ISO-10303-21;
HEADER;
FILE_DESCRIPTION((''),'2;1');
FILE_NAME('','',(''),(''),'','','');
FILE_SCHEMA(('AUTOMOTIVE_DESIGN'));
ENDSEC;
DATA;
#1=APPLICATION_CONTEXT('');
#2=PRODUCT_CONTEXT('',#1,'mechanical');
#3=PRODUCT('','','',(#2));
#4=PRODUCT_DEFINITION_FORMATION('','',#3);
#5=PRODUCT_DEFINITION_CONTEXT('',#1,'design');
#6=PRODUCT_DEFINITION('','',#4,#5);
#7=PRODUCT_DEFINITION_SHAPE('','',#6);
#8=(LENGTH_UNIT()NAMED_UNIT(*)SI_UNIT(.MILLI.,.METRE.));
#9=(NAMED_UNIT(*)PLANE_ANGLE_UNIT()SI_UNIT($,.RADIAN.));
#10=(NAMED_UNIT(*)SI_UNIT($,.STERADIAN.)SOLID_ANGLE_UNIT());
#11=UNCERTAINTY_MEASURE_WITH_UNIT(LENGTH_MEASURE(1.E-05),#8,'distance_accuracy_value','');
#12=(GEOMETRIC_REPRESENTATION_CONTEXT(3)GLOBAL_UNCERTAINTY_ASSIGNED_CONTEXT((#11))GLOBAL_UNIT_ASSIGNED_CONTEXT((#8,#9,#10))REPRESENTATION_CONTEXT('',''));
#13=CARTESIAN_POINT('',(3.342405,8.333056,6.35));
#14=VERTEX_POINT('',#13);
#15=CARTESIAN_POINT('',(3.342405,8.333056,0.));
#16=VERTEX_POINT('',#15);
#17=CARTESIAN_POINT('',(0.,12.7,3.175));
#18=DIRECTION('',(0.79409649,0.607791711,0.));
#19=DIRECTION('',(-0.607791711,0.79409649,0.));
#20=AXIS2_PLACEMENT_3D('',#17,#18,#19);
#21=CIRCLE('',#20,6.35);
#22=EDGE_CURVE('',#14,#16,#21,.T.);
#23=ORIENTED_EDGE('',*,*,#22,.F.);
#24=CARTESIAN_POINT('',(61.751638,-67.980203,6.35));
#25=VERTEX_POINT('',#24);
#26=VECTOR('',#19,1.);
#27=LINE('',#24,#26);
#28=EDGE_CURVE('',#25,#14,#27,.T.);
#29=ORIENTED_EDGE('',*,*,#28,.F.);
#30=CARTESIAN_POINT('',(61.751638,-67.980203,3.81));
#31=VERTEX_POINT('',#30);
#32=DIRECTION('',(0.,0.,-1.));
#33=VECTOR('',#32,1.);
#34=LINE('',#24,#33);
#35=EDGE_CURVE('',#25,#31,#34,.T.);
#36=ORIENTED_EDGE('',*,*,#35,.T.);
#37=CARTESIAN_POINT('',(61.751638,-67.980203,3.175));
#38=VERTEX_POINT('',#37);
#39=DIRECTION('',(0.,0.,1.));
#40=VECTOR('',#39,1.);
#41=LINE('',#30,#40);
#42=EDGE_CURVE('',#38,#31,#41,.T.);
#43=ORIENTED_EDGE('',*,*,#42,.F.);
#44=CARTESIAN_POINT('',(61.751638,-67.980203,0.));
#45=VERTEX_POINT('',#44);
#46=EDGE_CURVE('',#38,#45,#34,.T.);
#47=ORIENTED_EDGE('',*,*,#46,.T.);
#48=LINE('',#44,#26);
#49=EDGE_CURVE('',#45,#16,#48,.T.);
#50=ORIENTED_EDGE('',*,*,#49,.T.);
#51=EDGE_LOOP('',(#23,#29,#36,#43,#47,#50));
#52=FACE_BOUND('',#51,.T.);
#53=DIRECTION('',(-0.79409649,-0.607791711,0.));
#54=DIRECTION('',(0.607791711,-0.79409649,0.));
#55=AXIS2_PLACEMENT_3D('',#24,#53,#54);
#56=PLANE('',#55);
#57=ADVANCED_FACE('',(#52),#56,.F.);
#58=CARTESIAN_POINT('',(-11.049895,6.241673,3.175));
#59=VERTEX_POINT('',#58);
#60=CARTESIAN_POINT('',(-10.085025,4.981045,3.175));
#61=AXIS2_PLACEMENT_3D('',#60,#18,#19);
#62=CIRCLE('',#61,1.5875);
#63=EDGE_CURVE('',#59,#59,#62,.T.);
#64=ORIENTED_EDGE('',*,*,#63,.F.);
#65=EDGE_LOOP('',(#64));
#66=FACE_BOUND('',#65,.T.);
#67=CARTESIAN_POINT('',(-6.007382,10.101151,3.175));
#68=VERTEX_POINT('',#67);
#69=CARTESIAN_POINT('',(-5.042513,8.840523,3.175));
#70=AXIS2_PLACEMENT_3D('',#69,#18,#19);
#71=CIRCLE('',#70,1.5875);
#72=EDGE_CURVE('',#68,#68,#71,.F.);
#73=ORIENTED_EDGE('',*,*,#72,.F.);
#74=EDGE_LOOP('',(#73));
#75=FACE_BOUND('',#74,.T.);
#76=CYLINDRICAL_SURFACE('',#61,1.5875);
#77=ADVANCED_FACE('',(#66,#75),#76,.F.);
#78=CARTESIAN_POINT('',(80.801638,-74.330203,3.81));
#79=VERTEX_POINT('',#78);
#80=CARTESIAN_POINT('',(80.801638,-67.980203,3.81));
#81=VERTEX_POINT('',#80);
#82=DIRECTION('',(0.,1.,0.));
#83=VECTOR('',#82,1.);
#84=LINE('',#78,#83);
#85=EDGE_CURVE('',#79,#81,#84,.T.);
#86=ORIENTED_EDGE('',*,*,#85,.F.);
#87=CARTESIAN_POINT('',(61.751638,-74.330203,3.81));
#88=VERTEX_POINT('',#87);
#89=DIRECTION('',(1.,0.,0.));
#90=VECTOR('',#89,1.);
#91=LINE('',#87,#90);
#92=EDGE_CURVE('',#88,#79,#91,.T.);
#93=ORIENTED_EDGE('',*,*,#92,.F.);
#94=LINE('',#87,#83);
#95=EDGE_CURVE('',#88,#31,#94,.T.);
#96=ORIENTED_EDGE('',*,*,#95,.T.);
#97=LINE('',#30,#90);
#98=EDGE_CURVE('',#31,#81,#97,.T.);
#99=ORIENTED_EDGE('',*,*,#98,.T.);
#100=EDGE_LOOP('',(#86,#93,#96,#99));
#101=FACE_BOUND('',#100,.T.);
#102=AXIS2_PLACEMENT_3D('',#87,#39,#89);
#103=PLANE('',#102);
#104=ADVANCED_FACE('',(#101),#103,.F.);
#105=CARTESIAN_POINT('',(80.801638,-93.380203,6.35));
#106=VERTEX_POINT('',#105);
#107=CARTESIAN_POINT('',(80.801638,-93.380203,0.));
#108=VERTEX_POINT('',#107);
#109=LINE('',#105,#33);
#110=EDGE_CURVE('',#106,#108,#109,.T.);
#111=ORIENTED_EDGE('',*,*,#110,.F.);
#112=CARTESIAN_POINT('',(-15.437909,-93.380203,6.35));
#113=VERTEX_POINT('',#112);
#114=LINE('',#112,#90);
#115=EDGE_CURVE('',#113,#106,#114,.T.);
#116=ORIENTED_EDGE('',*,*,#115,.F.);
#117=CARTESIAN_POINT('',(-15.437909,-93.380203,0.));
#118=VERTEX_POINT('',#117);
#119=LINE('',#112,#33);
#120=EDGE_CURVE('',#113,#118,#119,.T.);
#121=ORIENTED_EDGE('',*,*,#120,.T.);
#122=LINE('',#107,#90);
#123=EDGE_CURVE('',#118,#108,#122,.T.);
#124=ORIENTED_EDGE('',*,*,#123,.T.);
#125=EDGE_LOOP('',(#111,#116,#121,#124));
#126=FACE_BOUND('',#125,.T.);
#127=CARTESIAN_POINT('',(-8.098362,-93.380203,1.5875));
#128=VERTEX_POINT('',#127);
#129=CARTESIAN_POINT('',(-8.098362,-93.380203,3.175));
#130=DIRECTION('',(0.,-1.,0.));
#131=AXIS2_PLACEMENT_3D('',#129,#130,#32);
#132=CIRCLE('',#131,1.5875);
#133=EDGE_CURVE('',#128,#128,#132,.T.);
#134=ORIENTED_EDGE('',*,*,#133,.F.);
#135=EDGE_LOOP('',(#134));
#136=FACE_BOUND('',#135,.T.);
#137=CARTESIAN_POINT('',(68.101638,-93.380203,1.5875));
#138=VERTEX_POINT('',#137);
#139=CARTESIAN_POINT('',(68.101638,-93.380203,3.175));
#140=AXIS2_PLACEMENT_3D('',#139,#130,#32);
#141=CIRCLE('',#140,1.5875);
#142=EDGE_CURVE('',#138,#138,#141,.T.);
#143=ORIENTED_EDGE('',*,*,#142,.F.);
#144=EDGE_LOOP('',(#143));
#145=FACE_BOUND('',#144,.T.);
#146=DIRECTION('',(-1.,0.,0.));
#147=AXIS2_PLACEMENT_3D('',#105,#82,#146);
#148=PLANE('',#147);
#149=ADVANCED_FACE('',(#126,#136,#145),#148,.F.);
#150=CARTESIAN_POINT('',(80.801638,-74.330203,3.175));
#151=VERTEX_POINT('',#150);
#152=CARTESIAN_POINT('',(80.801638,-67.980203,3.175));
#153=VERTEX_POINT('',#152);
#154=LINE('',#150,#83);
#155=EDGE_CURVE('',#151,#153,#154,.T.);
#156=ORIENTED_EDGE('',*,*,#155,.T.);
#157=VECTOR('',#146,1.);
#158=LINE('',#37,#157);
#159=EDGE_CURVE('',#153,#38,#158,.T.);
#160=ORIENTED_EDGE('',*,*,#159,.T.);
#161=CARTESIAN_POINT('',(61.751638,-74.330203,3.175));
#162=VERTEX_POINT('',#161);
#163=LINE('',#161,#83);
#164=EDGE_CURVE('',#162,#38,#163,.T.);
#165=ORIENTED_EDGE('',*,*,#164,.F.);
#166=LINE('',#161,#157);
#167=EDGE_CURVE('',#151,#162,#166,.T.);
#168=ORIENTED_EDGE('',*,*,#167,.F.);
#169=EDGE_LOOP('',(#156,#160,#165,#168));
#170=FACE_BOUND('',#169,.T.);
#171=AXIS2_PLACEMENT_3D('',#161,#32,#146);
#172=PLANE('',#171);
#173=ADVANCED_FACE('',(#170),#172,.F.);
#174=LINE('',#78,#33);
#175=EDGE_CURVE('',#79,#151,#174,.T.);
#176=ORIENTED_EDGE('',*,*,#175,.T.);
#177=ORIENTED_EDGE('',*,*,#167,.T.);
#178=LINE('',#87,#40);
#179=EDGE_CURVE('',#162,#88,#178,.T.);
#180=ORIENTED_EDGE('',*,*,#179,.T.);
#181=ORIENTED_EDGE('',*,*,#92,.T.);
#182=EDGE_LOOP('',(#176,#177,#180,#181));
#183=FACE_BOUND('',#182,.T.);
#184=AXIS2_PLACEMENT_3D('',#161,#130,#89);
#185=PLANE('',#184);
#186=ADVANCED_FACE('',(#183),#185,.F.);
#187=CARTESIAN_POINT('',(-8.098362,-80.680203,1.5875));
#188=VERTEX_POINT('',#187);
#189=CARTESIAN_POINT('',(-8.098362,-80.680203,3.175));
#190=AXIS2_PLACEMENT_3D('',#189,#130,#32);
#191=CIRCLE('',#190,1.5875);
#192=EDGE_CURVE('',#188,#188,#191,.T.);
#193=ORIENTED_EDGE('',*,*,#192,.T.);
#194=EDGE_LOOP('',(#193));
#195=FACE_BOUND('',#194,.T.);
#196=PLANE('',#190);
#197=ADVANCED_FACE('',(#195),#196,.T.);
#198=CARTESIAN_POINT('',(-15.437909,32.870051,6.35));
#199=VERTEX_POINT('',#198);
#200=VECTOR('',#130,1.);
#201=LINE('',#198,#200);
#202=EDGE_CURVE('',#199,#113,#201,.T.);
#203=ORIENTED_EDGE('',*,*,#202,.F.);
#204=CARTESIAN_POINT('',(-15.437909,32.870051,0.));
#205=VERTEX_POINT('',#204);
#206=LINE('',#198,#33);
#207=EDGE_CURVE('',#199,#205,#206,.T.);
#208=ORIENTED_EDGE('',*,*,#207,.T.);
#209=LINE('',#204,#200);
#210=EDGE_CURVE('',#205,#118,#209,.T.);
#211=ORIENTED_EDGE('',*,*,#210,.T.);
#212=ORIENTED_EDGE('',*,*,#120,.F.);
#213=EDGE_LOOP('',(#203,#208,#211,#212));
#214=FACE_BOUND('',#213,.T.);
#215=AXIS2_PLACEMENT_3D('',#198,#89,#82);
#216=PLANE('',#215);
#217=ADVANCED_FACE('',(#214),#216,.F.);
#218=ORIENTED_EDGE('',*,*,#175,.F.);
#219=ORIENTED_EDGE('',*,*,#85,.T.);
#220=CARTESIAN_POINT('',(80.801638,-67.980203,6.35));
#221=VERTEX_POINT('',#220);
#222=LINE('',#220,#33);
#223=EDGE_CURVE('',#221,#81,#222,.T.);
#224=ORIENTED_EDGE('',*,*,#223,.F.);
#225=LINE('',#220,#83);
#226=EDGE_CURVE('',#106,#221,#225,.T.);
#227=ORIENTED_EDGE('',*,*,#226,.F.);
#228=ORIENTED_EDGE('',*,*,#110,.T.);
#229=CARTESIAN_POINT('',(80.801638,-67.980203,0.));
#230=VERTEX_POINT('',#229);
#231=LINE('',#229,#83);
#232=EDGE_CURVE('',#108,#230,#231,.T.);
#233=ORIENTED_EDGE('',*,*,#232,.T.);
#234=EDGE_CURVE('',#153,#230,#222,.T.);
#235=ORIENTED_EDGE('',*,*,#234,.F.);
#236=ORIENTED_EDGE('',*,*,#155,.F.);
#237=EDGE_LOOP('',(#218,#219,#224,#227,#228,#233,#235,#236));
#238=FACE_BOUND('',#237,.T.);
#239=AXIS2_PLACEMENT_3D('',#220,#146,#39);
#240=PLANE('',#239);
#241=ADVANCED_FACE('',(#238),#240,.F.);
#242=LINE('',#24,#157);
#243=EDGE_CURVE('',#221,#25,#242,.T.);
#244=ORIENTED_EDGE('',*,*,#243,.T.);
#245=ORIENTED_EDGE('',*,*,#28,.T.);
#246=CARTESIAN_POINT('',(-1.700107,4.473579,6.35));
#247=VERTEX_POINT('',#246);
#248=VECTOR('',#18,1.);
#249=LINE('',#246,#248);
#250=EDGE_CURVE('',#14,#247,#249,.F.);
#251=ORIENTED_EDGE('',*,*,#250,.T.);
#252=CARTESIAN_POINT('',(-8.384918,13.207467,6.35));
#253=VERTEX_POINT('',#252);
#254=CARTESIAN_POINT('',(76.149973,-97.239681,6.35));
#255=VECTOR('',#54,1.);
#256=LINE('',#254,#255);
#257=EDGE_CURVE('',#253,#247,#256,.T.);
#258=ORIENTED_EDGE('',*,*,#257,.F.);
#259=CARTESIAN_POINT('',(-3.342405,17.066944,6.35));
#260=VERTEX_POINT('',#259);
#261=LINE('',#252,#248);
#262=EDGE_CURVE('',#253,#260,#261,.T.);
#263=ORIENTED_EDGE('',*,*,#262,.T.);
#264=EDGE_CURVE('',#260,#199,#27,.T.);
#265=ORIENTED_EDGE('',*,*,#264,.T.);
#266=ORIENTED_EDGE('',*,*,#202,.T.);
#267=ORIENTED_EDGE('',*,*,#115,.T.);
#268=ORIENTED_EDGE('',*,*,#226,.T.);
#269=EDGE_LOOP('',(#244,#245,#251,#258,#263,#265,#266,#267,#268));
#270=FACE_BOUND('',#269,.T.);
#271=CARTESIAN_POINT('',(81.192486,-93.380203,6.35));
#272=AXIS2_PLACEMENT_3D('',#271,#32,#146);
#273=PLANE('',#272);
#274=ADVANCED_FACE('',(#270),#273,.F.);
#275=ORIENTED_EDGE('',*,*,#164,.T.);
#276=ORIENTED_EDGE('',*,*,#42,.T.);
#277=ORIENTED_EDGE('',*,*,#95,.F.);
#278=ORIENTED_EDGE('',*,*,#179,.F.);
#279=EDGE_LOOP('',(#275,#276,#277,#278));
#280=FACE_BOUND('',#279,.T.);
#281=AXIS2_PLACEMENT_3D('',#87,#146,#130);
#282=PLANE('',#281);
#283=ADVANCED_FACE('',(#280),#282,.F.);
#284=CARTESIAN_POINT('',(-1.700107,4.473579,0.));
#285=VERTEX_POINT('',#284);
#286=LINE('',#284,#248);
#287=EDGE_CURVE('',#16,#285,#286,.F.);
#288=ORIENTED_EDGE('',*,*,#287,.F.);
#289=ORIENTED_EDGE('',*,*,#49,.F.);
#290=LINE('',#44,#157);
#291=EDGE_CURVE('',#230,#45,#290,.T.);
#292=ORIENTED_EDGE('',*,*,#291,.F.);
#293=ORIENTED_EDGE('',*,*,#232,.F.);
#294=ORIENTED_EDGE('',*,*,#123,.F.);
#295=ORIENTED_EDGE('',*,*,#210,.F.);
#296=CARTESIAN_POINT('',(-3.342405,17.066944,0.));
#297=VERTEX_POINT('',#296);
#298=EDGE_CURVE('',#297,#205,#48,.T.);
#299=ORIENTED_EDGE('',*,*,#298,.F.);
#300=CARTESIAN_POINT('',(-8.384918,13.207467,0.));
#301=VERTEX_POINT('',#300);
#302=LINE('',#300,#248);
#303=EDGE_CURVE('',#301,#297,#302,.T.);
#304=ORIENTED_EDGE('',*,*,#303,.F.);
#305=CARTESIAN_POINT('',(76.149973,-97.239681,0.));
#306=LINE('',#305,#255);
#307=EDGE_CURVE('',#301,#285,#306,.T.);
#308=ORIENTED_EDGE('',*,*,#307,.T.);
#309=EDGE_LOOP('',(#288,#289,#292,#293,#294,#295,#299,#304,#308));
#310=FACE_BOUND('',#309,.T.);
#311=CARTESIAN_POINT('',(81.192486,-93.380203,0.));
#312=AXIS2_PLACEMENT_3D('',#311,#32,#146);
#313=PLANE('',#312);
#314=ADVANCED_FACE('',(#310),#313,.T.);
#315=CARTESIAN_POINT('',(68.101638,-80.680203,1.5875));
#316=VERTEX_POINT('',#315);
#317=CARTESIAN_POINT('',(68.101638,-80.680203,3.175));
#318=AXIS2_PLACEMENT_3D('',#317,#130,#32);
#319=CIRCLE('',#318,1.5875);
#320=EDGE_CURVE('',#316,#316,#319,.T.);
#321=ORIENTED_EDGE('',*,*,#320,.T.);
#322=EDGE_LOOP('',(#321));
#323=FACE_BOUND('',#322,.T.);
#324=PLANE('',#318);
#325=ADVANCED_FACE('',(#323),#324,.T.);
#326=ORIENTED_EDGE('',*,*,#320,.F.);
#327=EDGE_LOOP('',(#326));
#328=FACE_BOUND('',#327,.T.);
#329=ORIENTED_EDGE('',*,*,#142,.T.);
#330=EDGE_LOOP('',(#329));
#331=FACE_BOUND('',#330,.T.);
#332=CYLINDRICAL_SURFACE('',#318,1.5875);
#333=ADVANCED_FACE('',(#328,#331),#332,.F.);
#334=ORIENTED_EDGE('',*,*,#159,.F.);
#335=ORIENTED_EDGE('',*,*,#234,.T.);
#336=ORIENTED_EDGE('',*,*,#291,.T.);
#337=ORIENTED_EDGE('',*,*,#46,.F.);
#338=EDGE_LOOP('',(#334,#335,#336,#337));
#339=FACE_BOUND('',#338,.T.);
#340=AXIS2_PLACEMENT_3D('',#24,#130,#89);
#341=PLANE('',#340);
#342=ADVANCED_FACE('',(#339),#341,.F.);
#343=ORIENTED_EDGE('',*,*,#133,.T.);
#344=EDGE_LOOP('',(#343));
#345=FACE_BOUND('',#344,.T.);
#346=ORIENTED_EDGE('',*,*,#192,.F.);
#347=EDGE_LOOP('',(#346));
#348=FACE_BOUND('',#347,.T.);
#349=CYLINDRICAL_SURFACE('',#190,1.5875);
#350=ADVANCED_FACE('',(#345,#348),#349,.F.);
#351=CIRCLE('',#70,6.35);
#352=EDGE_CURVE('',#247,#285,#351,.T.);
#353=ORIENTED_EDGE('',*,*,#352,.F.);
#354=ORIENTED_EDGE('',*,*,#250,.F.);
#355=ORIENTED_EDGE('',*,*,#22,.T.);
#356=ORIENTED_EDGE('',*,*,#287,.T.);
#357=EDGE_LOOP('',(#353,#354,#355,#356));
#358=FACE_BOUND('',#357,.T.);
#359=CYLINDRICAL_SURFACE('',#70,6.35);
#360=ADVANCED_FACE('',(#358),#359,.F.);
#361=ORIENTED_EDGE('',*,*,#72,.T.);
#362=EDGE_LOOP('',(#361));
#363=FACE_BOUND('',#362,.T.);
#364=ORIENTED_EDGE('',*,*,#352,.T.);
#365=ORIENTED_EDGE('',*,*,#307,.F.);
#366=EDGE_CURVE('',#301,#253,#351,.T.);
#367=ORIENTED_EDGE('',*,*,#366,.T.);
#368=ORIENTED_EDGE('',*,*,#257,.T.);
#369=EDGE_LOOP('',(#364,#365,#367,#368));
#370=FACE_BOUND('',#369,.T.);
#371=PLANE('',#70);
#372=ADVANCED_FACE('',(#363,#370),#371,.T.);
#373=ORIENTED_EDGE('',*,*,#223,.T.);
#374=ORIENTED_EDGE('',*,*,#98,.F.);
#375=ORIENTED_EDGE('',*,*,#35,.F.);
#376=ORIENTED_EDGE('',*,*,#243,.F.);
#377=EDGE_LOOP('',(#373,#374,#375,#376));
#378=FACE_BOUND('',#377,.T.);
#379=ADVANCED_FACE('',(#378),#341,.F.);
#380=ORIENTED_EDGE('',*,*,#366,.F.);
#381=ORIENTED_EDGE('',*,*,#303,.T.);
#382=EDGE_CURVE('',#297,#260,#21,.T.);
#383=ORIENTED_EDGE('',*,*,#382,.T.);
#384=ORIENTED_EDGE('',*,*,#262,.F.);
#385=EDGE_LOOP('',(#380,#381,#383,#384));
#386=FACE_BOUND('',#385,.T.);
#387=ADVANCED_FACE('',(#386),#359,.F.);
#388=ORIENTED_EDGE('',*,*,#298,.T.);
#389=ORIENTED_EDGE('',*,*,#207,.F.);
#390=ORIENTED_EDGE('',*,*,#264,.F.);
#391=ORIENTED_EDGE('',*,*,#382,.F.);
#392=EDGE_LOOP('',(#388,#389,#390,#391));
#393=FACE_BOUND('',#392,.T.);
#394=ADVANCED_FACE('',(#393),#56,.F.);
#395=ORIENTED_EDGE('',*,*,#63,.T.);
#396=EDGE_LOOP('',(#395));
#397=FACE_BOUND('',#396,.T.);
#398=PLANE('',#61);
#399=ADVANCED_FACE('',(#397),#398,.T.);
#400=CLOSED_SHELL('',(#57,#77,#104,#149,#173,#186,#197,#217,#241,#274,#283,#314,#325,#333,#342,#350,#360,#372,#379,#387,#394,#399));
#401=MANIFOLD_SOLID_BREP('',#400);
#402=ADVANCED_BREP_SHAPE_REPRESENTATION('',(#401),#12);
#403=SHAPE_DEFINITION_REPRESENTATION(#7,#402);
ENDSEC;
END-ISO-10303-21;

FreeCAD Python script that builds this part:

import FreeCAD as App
import Part
import Sketcher

V = App.Vector
Q = App.Units.Quantity

doc = App.newDocument("Part")
body = doc.addObject("PartDesign::Body", "Body")

sketch1 = body.newObject("Sketcher::SketchObject", "Sketch")
sketch1.AttachmentSupport = (doc.getObject("XY_Plane"), [""])
sketch1.MapMode = "FlatFace"
sketch1.addGeometry([
    Part.LineSegment(V(-15, 33, 0), V(-15, -93, 0)),
    Part.LineSegment(V(-15, -93, 0), V(81, -93, 0)),
    Part.LineSegment(V(81, -93, 0), V(81, -68, 0)),
    Part.LineSegment(V(81, -68, 0), V(62, -68, 0)),
    Part.LineSegment(V(62, -68, 0), V(-15, 33, 0)),
], False)
sketch1.addConstraint([
    Sketcher.Constraint("Coincident", 0, 2, 1, 1),
    Sketcher.Constraint("Coincident", 1, 2, 2, 1),
    Sketcher.Constraint("Coincident", 2, 2, 3, 1),
    Sketcher.Constraint("Coincident", 3, 2, 4, 1),
    Sketcher.Constraint("Coincident", 4, 2, 0, 1),
    Sketcher.Constraint("Vertical", 0),
    Sketcher.Constraint("Horizontal", 1),
    Sketcher.Constraint("Vertical", 2),
    Sketcher.Constraint("Horizontal", 3),
    Sketcher.Constraint("DistanceY", 2, 1, 2, 2, Q("1 in")),
    Sketcher.Constraint("Distance", 4, Q("5 in")),
    Sketcher.Constraint("DistanceX", 3, 2, 3, 1, Q("0.75 in")),
    Sketcher.Constraint("Angle", 4, Q("127.43 deg")),
    Sketcher.Constraint("DistanceX", 0, 2, -1, 1, Q("15.437909 mm")),
    Sketcher.Constraint("DistanceY", -1, 1, 4, 2, Q("32.870051 mm")),
])
pad1 = body.newObject("PartDesign::Pad", "Pad")
pad1.Profile = sketch1
pad1.Length = Q("0.25 in")

sketch2 = body.newObject("Sketcher::SketchObject", "Sketch001")
sketch2.AttachmentSupport = (doc.getObject("XZ_Plane"), [""])
sketch2.MapMode = "FlatFace"
sketch2.AttachmentOffset = App.Placement(V(0, 0, 93.380203), App.Rotation())
sketch2.addGeometry([
    Part.Circle(V(-8.1, 3.2, 0), V(0, 0, 1), 1.6),
    Part.Circle(V(68.1, 3.2, 0), V(0, 0, 1), 1.6),
], False)
sketch2.addConstraint([
    Sketcher.Constraint("Equal", 0, 1),
    Sketcher.Constraint("Horizontal", 0, 3, 1, 3),
    Sketcher.Constraint("Diameter", 0, Q("0.125 in")),
    Sketcher.Constraint("DistanceX", 0, 3, 1, 3, Q("3 in")),
    Sketcher.Constraint("DistanceY", -1, 1, 0, 3, Q("0.125 in")),
    Sketcher.Constraint("DistanceX", 0, 3, -1, 1, Q("8.098362 mm")),
])
pocket1 = body.newObject("PartDesign::Pocket", "Pocket")
pocket1.Profile = sketch2
pocket1.Length = Q("0.5 in")

sketch3 = body.newObject("Sketcher::SketchObject", "Sketch002")
sketch3.Placement = App.Placement(V(6.129595, 4.691517, 0), App.Rotation(V(0, 0, -1), V(-0.607791711, 0.79409649, 0), V(0.79409649, 0.607791711, 0), "ZXY"))
sketch3.addGeometry(Part.Circle(V(-3.2, 10.1, 0), V(0, 0, 1), 1.6), False)
sketch3.addConstraint([
    Sketcher.Constraint("Diameter", 0, Q("0.125 in")),
    Sketcher.Constraint("DistanceX", 0, 3, -1, 1, Q("0.125 in")),
    Sketcher.Constraint("DistanceY", -1, 1, 0, 3, Q("10.085025 mm")),
])
pocket2 = body.newObject("PartDesign::Pocket", "Pocket001")
pocket2.Profile = sketch3
pocket2.Length = Q("0.5 in")

sketch4 = body.newObject("Sketcher::SketchObject", "Sketch003")
sketch4.AttachmentSupport = (doc.getObject("XZ_Plane"), [""])
sketch4.MapMode = "FlatFace"
sketch4.AttachmentOffset = App.Placement(V(0, 0, 67.980203), App.Rotation())
sketch4.addGeometry([
    Part.LineSegment(V(61.8, 3.2, 0), V(61.8, 3.8, 0)),
    Part.LineSegment(V(61.8, 3.8, 0), V(80.8, 3.8, 0)),
    Part.LineSegment(V(80.8, 3.8, 0), V(80.8, 3.2, 0)),
    Part.LineSegment(V(80.8, 3.2, 0), V(61.8, 3.2, 0)),
], False)
sketch4.addConstraint([
    Sketcher.Constraint("Coincident", 0, 2, 1, 1),
    Sketcher.Constraint("Coincident", 1, 2, 2, 1),
    Sketcher.Constraint("Coincident", 2, 2, 3, 1),
    Sketcher.Constraint("Coincident", 3, 2, 0, 1),
    Sketcher.Constraint("Vertical", 0),
    Sketcher.Constraint("Horizontal", 1),
    Sketcher.Constraint("Vertical", 2),
    Sketcher.Constraint("Horizontal", 3),
    Sketcher.Constraint("DistanceX", 1, 1, 1, 2, Q("0.75 in")),
    Sketcher.Constraint("DistanceY", 0, 1, 0, 2, Q("0.025 in")),
    Sketcher.Constraint("DistanceY", -1, 1, 0, 2, Q("0.15 in")),
    Sketcher.Constraint("DistanceX", -1, 1, 0, 2, Q("61.751638 mm")),
])
pocket3 = body.newObject("PartDesign::Pocket", "Pocket002")
pocket3.Profile = sketch4
pocket3.Length = Q("0.25 in")
pocket3.Reversed = True

sketch5 = body.newObject("Sketcher::SketchObject", "Sketch004")
sketch5.Placement = App.Placement(V(6.129595, 4.691517, 0), App.Rotation(V(0, 0, -1), V(-0.607791711, 0.79409649, 0), V(0.79409649, 0.607791711, 0), "ZXY"))
sketch5.addGeometry(Part.Circle(V(-3, 10, 0), V(0, 0, 1), 6), False)
sketch5.addConstraint([
    Sketcher.Constraint("Diameter", 0, Q("0.5 in")),
    Sketcher.Constraint("DistanceX", 0, 3, -1, 1, Q("0.125 in")),
    Sketcher.Constraint("DistanceY", -1, 1, 0, 3, Q("10.085025 mm")),
])
pocket4 = body.newObject("PartDesign::Pocket", "Pocket003")
pocket4.Profile = sketch5
pocket4.Length = Q("0.25 in")

doc.recompute()
